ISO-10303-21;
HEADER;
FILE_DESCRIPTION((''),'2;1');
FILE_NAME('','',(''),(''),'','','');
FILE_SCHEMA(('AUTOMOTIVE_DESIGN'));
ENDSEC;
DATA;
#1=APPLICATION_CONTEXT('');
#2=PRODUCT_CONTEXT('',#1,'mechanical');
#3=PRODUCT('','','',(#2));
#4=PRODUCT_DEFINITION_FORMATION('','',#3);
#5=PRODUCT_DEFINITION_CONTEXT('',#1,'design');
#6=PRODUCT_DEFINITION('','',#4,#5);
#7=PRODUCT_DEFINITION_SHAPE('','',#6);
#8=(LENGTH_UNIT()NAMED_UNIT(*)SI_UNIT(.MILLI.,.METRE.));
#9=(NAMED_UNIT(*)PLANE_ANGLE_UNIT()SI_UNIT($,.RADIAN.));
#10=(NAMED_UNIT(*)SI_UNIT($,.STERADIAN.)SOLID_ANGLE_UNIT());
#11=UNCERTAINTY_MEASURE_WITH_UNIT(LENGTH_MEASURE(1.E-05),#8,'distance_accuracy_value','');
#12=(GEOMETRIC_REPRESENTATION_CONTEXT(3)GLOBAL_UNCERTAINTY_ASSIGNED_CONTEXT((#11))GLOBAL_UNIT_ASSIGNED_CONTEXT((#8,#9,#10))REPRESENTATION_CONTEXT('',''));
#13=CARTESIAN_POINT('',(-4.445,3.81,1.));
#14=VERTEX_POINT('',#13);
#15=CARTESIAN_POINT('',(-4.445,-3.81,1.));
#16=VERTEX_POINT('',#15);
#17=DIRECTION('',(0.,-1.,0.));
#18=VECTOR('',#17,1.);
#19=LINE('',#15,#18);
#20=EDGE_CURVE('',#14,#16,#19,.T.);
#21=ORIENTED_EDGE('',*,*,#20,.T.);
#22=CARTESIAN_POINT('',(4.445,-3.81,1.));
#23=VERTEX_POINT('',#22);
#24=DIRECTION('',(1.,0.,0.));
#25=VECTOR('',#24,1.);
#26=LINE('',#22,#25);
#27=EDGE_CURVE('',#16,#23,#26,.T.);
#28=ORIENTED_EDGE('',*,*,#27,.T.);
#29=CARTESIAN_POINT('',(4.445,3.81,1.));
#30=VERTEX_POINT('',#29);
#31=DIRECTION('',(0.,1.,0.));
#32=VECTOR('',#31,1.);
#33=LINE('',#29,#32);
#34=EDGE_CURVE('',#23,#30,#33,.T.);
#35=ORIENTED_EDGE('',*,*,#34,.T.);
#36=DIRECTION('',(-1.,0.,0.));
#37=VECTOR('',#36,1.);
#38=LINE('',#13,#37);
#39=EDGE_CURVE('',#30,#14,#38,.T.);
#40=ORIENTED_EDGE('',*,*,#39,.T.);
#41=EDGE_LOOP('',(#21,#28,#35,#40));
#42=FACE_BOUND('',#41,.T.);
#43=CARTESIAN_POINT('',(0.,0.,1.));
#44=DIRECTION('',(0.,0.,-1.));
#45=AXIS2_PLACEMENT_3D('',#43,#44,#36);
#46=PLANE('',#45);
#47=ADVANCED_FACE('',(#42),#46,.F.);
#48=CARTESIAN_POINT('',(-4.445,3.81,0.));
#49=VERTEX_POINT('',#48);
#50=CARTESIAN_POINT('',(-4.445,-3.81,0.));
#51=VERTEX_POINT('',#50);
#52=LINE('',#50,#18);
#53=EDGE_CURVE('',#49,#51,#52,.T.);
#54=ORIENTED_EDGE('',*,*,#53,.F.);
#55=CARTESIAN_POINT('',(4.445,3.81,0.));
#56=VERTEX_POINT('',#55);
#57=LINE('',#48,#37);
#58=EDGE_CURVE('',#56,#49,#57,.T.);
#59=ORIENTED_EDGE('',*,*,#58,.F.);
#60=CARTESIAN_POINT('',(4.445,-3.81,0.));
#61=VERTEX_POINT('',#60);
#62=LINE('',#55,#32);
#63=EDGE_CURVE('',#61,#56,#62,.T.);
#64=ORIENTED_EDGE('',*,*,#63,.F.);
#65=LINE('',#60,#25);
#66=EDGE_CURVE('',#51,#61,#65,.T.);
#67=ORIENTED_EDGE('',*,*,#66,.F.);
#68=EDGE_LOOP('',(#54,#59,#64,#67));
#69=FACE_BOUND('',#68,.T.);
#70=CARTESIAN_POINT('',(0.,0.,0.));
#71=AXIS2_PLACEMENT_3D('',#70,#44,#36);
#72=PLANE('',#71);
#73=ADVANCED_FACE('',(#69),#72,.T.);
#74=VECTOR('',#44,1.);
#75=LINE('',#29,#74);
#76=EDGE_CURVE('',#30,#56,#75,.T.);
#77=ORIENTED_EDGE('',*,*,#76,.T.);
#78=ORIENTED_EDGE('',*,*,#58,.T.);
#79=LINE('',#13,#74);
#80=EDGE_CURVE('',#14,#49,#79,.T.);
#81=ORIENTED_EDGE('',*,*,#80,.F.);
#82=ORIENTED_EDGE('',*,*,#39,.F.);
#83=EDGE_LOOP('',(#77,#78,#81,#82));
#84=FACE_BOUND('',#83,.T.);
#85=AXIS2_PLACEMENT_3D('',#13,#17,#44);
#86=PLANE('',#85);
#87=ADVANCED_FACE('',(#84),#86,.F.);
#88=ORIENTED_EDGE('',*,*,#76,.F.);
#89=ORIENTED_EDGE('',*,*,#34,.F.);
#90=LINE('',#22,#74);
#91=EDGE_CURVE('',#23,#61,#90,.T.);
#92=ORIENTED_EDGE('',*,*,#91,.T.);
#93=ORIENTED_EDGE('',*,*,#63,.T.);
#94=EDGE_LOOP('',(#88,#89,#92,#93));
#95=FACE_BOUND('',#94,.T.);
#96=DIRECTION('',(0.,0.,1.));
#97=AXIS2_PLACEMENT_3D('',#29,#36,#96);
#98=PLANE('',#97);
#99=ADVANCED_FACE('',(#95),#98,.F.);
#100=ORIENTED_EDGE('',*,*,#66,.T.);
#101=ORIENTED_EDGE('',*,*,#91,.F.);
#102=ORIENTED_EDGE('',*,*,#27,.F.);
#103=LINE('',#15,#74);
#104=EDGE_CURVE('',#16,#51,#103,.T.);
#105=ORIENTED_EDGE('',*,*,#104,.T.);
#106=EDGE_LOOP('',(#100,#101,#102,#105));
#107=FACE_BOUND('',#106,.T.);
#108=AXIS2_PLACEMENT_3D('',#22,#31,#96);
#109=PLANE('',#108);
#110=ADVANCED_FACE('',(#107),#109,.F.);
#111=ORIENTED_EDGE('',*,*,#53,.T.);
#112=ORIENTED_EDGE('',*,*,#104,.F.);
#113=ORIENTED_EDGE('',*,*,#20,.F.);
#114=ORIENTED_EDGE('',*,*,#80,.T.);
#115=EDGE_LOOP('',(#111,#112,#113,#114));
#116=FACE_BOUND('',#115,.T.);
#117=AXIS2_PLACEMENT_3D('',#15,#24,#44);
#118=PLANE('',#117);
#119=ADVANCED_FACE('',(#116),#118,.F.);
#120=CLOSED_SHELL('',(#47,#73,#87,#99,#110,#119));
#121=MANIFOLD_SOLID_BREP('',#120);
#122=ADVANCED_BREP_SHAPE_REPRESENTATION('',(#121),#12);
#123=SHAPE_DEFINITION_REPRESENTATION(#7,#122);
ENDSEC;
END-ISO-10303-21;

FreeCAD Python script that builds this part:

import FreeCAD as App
import Part
import Sketcher

V = App.Vector
Q = App.Units.Quantity


def add_polygon(sketch, points):
    """Adds a closed chain of lines whose ends are joined by coincident constraints."""
    first, n = sketch.GeometryCount, len(points)
    for a, b in zip(points, points[1:] + points[:1]):
        sketch.addGeometry(Part.LineSegment(App.Vector(*a, 0), App.Vector(*b, 0)), False)
    for i in range(n):
        sketch.addConstraint(Sketcher.Constraint("Coincident", first + i, 2, first + (i + 1) % n, 1))

doc = App.newDocument("Part")
body = doc.addObject("PartDesign::Body", "Body")

sketch1 = body.newObject("Sketcher::SketchObject", "Sketch")
sketch1.AttachmentSupport = (doc.getObject("XY_Plane"), [""])
sketch1.MapMode = "FlatFace"
add_polygon(sketch1, [(-4.445, 3.81), (-4.445, -3.81), (4.445, -3.81), (4.445, 3.81)])
sketch1.addConstraint([
    Sketcher.Constraint("Vertical", 0),
    Sketcher.Constraint("Horizontal", 1),
    Sketcher.Constraint("Vertical", 2),
    Sketcher.Constraint("Horizontal", 3),
    Sketcher.Constraint("Symmetric", 0, 2, 2, 2, -1, 1),
    Sketcher.Constraint("DistanceY", 0, 2, 0, 1, Q("0.3 in")),
    Sketcher.Constraint("DistanceX", 1, 1, 1, 2, Q("0.35 in")),
])
pad1 = body.newObject("PartDesign::Pad", "Pad")
pad1.Profile = sketch1
pad1.Length = 1

doc.recompute()
